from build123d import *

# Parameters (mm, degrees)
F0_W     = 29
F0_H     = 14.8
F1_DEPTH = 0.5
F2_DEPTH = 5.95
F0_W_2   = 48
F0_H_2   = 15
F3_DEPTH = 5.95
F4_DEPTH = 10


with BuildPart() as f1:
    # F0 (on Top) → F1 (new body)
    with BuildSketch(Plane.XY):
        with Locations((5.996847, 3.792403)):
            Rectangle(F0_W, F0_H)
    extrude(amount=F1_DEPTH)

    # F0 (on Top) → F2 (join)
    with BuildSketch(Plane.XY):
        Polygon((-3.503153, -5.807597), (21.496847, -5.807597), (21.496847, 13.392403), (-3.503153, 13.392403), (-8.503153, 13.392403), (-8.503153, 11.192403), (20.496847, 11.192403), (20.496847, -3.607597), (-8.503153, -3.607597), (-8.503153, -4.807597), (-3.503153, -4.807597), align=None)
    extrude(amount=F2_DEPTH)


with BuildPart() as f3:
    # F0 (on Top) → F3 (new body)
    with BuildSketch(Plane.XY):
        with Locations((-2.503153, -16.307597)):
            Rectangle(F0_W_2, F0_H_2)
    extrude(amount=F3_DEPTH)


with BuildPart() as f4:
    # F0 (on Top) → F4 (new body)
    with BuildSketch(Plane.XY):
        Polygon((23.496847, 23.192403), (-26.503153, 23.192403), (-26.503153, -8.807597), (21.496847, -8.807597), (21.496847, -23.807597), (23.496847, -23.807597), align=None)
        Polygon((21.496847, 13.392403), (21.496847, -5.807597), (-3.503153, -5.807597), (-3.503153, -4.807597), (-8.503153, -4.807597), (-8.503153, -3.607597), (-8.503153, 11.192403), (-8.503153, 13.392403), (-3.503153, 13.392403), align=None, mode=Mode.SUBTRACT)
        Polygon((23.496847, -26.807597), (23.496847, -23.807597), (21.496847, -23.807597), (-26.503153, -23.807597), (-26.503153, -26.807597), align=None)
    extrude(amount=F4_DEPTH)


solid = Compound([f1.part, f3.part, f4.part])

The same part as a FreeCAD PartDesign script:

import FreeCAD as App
import Part
import Sketcher

V = App.Vector
Q = App.Units.Quantity


def add_polygon(sketch, points):
    """Adds a closed chain of lines whose ends are joined by coincident constraints."""
    first, n = sketch.GeometryCount, len(points)
    for a, b in zip(points, points[1:] + points[:1]):
        sketch.addGeometry(Part.LineSegment(App.Vector(*a, 0), App.Vector(*b, 0)), False)
    for i in range(n):
        sketch.addConstraint(Sketcher.Constraint("Coincident", first + i, 2, first + (i + 1) % n, 1))

doc = App.newDocument("Part")
body = doc.addObject("PartDesign::Body", "Body")

sketch1 = doc.addObject("Sketcher::SketchObject", "Sketch")
body.addObject(sketch1)
sketch1.AttachmentSupport = (doc.XY_Plane, [""])
sketch1.MapMode = "FlatFace"
add_polygon(sketch1, [(-9, 11), (-9, -4), (20, -4), (20, 11)])
sketch1.addConstraint([
    Sketcher.Constraint("Vertical", 0),
    Sketcher.Constraint("Horizontal", 1),
    Sketcher.Constraint("Vertical", 2),
    Sketcher.Constraint("Horizontal", 3),
    Sketcher.Constraint("DistanceX", 1, 1, 1, 2, Q("29 mm")),
    Sketcher.Constraint("DistanceY", 0, 2, 0, 1, Q("14.8 mm")),
    Sketcher.Constraint("DistanceX", 0, 2, -1, 1, Q("8.503153 mm")),
    Sketcher.Constraint("DistanceY", 0, 2, -1, 1, Q("3.607597 mm")),
])
pad1 = doc.addObject("PartDesign::Pad", "Pad")
body.addObject(pad1)
pad1.Profile = sketch1
pad1.Length = 0.5

sketch2 = doc.addObject("Sketcher::SketchObject", "Sketch001")
body.addObject(sketch2)
sketch2.AttachmentSupport = (doc.XY_Plane, [""])
sketch2.MapMode = "FlatFace"
add_polygon(sketch2, [(-3.5, -5.8), (21.5, -5.8), (21.5, 13.4), (-8.5, 13.4), (-8.5, 11.2), (20.5, 11.2), (20.5, -3.6), (-8.5, -3.6), (-8.5, -4.8), (-3.5, -4.8)])
sketch2.addConstraint([
    Sketcher.Constraint("Horizontal", 0),
    Sketcher.Constraint("Vertical", 1),
    Sketcher.Constraint("Horizontal", 2),
    Sketcher.Constraint("Vertical", 3),
    Sketcher.Constraint("Horizontal", 4),
    Sketcher.Constraint("Vertical", 5),
    Sketcher.Constraint("Horizontal", 6),
    Sketcher.Constraint("Vertical", 7),
    Sketcher.Constraint("Horizontal", 8),
    Sketcher.Constraint("Vertical", 9),
    Sketcher.Constraint("Vertical", 3, 2, 6, 2),
    Sketcher.Constraint("DistanceX", 0, 1, 0, 2, Q("25 mm")),
    Sketcher.Constraint("DistanceX", 2, 2, 2, 1, Q("30 mm")),
    Sketcher.Constraint("DistanceX", 4, 1, 4, 2, Q("29 mm")),
    Sketcher.Constraint("DistanceY", 9, 2, 9, 1, Q("1 mm")),
    Sketcher.Constraint("DistanceY", 1, 1, 1, 2, Q("19.2 mm")),
    Sketcher.Constraint("DistanceY", 3, 2, 3, 1, Q("2.2 mm")),
    Sketcher.Constraint("DistanceY", 5, 2, 5, 1, Q("14.8 mm")),
    Sketcher.Constraint("DistanceX", -1, 1, 0, 2, Q("21.496847 mm")),
    Sketcher.Constraint("DistanceY", 0, 2, -1, 1, Q("5.807597 mm")),
])
pad2 = doc.addObject("PartDesign::Pad", "Pad001")
body.addObject(pad2)
pad2.Profile = sketch2
pad2.Length = 5.95
body2 = doc.addObject("PartDesign::Body", "Body001")

sketch3 = doc.addObject("Sketcher::SketchObject", "Sketch002")
body2.addObject(sketch3)
sketch3.AttachmentSupport = (doc.getObject("XY_Plane001"), [""])
sketch3.MapMode = "FlatFace"
add_polygon(sketch3, [(-27, -9), (-27, -24), (21, -24), (21, -9)])
sketch3.addConstraint([
    Sketcher.Constraint("Vertical", 0),
    Sketcher.Constraint("Horizontal", 1),
    Sketcher.Constraint("Vertical", 2),
    Sketcher.Constraint("Horizontal", 3),
    Sketcher.Constraint("DistanceX", 1, 1, 1, 2, Q("48 mm")),
    Sketcher.Constraint("DistanceY", 0, 2, 0, 1, Q("15 mm")),
    Sketcher.Constraint("DistanceX", 0, 2, -1, 1, Q("26.503153 mm")),
    Sketcher.Constraint("DistanceY", 0, 2, -1, 1, Q("23.807597 mm")),
])
pad3 = doc.addObject("PartDesign::Pad", "Pad002")
body2.addObject(pad3)
pad3.Profile = sketch3
pad3.Length = 5.95
body3 = doc.addObject("PartDesign::Body", "Body002")

sketch4 = doc.addObject("Sketcher::SketchObject", "Sketch003")
body3.addObject(sketch4)
sketch4.AttachmentSupport = (doc.getObject("XY_Plane002"), [""])
sketch4.MapMode = "FlatFace"
add_polygon(sketch4, [(23.5, 23.2), (-26.5, 23.2), (-26.5, -8.8), (21.5, -8.8), (21.5, -23.8), (-26.5, -23.8), (-26.5, -26.8), (23.5, -26.8)])
add_polygon(sketch4, [(-8.5, 13.4), (21.5, 13.4), (21.5, -5.8), (-3.5, -5.8), (-3.5, -4.8), (-8.5, -4.8)])
sketch4.addConstraint([
    Sketcher.Constraint("Horizontal", 0),
    Sketcher.Constraint("Vertical", 1),
    Sketcher.Constraint("Horizontal", 2),
    Sketcher.Constraint("Vertical", 3),
    Sketcher.Constraint("Horizontal", 4),
    Sketcher.Constraint("Vertical", 5),
    Sketcher.Constraint("Horizontal", 6),
    Sketcher.Constraint("Vertical", 7),
    Sketcher.Constraint("Horizontal", 8),
    Sketcher.Constraint("Vertical", 9),
    Sketcher.Constraint("Horizontal", 10),
    Sketcher.Constraint("Vertical", 11),
    Sketcher.Constraint("Horizontal", 12),
    Sketcher.Constraint("Vertical", 13),
    Sketcher.Constraint("Vertical", 1, 2, 4, 2),
    Sketcher.Constraint("Vertical", 3, 2, 8, 2),
    Sketcher.Constraint("Equal", 6, 7),
    Sketcher.Constraint("DistanceX", 0, 2, 0, 1, Q("50 mm")),
    Sketcher.Constraint("DistanceX", 2, 1, 2, 2, Q("48 mm")),
    Sketcher.Constraint("DistanceX", 8, 1, 8, 2, Q("30 mm")),
    Sketcher.Constraint("DistanceX", 10, 2, 10, 1, Q("25 mm")),
    Sketcher.Constraint("DistanceY", 1, 2, 1, 1, Q("32 mm")),
    Sketcher.Constraint("DistanceY", 3, 2, 3, 1, Q("15 mm")),
    Sketcher.Constraint("DistanceY", 11, 1, 11, 2, Q("1 mm")),
    Sketcher.Constraint("DistanceY", 9, 2, 9, 1, Q("19.2 mm")),
    Sketcher.Constraint("DistanceY", 2, 2, 9, 2, Q("3 mm")),
    Sketcher.Constraint("DistanceX", 0, 2, -1, 1, Q("26.503153 mm")),
    Sketcher.Constraint("DistanceY", -1, 1, 0, 2, Q("23.192403 mm")),
])
pad4 = doc.addObject("PartDesign::Pad", "Pad003")
body3.addObject(pad4)
pad4.Profile = sketch4
pad4.Length = 10

doc.recompute()
